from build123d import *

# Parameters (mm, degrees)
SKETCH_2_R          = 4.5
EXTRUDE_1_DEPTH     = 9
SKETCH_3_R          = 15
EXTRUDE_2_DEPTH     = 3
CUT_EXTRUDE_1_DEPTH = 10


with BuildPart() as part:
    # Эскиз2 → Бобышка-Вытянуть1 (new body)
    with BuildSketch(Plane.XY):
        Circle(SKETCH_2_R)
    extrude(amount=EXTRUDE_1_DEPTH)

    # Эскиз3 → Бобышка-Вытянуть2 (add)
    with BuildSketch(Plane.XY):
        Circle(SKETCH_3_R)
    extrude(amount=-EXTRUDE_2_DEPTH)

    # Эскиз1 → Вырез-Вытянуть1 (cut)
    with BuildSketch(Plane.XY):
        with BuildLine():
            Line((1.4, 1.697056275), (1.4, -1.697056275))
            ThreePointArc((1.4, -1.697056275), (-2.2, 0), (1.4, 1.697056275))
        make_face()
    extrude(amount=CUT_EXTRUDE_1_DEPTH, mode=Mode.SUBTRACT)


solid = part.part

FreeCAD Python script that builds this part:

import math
import FreeCAD as App
import Part
import Sketcher
Q = App.Units.Quantity

doc = App.newDocument("Part")
body = doc.addObject("PartDesign::Body", "Body")

# Sketch on XY plane
sketch1 = body.newObject("Sketcher::SketchObject", "Sketch")
sketch1.AttachmentSupport = (doc.getObject("XY_Plane"), [""])
sketch1.MapMode = "FlatFace"
sketch1.addGeometry(Part.Circle(App.Vector(0, 0, 0), App.Vector(0, 0, 1), 4.5), False)
sketch1.addConstraint([
    Sketcher.Constraint("Coincident", 0, 3, -1, 1),
    Sketcher.Constraint("Diameter", 0, Q("9 mm")),
])
pad1 = body.newObject("PartDesign::Pad", "Pad")
pad1.Profile = sketch1
pad1.Length = 9

# Sketch on XY plane
sketch2 = body.newObject("Sketcher::SketchObject", "Sketch001")
sketch2.AttachmentSupport = (doc.getObject("XY_Plane"), [""])
sketch2.MapMode = "FlatFace"
sketch2.addGeometry(Part.Circle(App.Vector(0, 0, 0), App.Vector(0, 0, 1), 15), False)
sketch2.addConstraint([
    Sketcher.Constraint("Coincident", 0, 3, -1, 1),
    Sketcher.Constraint("Diameter", 0, Q("30 mm")),
])
pad2 = body.newObject("PartDesign::Pad", "Pad001")
pad2.Profile = sketch2
pad2.Length = 3
pad2.Reversed = True

# Sketch on XY plane
sketch3 = body.newObject("Sketcher::SketchObject", "Sketch002")
sketch3.AttachmentSupport = (doc.getObject("XY_Plane"), [""])
sketch3.MapMode = "FlatFace"
sketch3.addGeometry([
    Part.LineSegment(App.Vector(1.4, -1.7, 0), App.Vector(1.4, 1.7, 0)),
    Part.ArcOfCircle(Part.Circle(App.Vector(0, 0, 0), App.Vector(0, 0, 1), 2.2), math.radians(50), math.radians(310)),
], False)
sketch3.addConstraint([
    Sketcher.Constraint("Coincident", 0, 1, 1, 2),
    Sketcher.Constraint("Coincident", 1, 1, 0, 2),
    Sketcher.Constraint("Vertical", 0),
    Sketcher.Constraint("Coincident", 1, 3, -1, 1),
    Sketcher.Constraint("Radius", 1, Q("2.2 mm")),
    Sketcher.Constraint("DistanceX", -1, 1, 0, 1, Q("1.4 mm")),
])
pocket1 = body.newObject("PartDesign::Pocket", "Pocket")
pocket1.Profile = sketch3
pocket1.Length = 10
pocket1.Reversed = True

doc.recompute()
